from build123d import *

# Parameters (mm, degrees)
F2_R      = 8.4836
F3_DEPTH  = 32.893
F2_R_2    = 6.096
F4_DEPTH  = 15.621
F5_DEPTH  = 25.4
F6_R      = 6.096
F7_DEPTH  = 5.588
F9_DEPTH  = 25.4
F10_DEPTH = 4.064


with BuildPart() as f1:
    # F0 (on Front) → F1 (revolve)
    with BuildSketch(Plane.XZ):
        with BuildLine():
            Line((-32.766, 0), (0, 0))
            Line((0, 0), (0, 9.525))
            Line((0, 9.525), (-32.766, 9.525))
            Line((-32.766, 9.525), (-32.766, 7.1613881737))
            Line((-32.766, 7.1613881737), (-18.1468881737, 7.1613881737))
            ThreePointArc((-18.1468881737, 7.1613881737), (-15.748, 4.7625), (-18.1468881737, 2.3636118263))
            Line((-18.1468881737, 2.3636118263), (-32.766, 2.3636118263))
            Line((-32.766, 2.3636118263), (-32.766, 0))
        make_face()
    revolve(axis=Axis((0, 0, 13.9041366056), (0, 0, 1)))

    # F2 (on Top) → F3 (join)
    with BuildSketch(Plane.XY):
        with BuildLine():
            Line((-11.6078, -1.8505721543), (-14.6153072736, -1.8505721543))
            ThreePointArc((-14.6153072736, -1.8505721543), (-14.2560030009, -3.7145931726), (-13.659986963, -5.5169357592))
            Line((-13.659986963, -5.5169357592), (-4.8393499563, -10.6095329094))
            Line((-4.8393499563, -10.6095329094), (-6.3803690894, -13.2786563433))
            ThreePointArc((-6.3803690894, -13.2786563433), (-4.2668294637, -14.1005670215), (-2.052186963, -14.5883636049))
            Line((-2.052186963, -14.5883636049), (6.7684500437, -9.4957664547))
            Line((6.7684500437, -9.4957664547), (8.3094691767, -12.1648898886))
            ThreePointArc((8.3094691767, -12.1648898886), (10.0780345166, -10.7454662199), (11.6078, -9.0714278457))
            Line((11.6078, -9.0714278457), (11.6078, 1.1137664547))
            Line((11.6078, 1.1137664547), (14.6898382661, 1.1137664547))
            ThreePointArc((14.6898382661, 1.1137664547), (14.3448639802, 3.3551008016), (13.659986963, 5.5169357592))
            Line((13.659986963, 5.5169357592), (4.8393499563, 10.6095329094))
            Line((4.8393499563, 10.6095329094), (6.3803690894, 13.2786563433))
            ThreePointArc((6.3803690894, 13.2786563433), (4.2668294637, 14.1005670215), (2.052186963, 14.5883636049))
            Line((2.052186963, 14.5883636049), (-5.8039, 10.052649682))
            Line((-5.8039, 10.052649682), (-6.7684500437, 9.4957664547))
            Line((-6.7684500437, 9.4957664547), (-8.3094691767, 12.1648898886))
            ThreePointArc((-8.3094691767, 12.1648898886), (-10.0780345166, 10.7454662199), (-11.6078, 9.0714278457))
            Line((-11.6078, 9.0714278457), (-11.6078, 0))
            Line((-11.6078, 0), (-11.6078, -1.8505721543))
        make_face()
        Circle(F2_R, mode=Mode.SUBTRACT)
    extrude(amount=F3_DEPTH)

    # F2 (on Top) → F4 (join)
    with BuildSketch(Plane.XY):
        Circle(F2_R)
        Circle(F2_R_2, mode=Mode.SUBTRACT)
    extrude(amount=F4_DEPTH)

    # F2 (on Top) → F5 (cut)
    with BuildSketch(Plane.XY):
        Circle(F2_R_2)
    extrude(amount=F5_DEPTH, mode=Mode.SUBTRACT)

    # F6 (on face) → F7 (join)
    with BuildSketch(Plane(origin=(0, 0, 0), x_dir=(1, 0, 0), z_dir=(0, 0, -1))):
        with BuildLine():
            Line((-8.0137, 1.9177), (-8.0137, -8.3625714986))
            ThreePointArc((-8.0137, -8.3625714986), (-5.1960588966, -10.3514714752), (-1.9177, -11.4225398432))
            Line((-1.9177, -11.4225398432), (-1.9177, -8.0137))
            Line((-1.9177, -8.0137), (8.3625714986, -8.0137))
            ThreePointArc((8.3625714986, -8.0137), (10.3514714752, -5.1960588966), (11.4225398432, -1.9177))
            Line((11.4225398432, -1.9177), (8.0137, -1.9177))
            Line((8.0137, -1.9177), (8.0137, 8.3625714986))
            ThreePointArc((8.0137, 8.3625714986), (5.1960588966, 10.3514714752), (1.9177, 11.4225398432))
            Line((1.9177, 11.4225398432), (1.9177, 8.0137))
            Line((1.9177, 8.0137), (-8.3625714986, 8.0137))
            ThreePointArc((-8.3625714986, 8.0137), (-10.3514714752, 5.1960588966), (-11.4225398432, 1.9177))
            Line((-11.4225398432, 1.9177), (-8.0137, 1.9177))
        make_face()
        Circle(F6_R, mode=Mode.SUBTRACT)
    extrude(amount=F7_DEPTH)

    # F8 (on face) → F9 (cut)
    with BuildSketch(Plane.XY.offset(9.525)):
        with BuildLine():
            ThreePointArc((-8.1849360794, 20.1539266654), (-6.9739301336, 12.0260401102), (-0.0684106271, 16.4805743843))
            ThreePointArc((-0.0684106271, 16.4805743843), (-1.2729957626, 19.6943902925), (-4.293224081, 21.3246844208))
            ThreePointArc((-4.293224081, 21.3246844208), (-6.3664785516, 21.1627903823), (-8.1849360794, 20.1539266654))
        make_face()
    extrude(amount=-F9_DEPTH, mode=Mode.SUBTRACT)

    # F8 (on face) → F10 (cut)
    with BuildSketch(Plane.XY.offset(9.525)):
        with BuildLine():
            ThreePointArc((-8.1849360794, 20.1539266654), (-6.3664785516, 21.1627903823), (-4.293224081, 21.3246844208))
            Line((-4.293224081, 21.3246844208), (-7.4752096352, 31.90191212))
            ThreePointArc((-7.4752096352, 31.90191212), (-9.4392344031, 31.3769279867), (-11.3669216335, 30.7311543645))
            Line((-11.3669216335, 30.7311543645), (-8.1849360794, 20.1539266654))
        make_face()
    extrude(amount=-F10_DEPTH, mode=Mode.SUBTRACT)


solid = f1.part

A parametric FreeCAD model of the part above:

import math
import FreeCAD as App
import Part
import Sketcher
from FreeCAD import Vector
Q = App.Units.Quantity

doc = App.newDocument("Part")
body = doc.addObject("PartDesign::Body", "Body")

# Sketch on XZ plane
sketch1 = doc.addObject("Sketcher::SketchObject", "Sketch")
body.addObject(sketch1)
sketch1.AttachmentSupport = (doc.XZ_Plane, [""])
sketch1.MapMode = "FlatFace"
sketch1.addGeometry([
    Part.LineSegment(Vector(-32.8, 0, 0), Vector(0, 0, 0)),  # 0
    Part.LineSegment(Vector(0, 0, 0), Vector(0, 9.5, 0)),  # 1
    Part.LineSegment(Vector(0, 9.5, 0), Vector(-32.8, 9.5, 0)),  # 2
    Part.LineSegment(Vector(-32.8, 9.5, 0), Vector(-32.8, 7.2, 0)),  # 3
    Part.LineSegment(Vector(-32.8, 7.2, 0), Vector(-18.1, 7.2, 0)),  # 4
    Part.ArcOfCircle(Part.Circle(Vector(-18.1, 4.8, 0), Vector(0, 0, 1), 2.4), math.radians(-90), math.radians(90)),  # 5
    Part.LineSegment(Vector(-18.1, 2.4, 0), Vector(-32.8, 2.4, 0)),  # 6
    Part.LineSegment(Vector(-32.8, 2.4, 0), Vector(-32.8, 0, 0)),  # 7
], False)
sketch1.addConstraint([
    Sketcher.Constraint("Coincident", 0, 2, 1, 1),
    Sketcher.Constraint("Coincident", 1, 2, 2, 1),
    Sketcher.Constraint("Coincident", 2, 2, 3, 1),
    Sketcher.Constraint("Coincident", 3, 2, 4, 1),
    Sketcher.Constraint("Tangent", 4, 2, 5, 2),
    Sketcher.Constraint("Tangent", 5, 1, 6, 1),
    Sketcher.Constraint("Coincident", 6, 2, 7, 1),
    Sketcher.Constraint("Coincident", 7, 2, 0, 1),
    Sketcher.Constraint("Horizontal", 0),
    Sketcher.Constraint("Vertical", 1),
    Sketcher.Constraint("Horizontal", 2),
    Sketcher.Constraint("Vertical", 3),
    Sketcher.Constraint("Horizontal", 4),
    Sketcher.Constraint("Horizontal", 6),
    Sketcher.Constraint("Vertical", 7),
    Sketcher.Constraint("Coincident", 0, 2, -1, 1),
    Sketcher.Constraint("Vertical", 3, 2, 6, 2),
    Sketcher.Constraint("Equal", 3, 7),
    Sketcher.Constraint("DistanceX", 0, 1, 0, 2, Q("1.29 in")),
    Sketcher.Constraint("DistanceY", 1, 1, 1, 2, Q("0.375 in")),
    Sketcher.Constraint("Radius", 5, 2.398888),
    Sketcher.Constraint("DistanceX", 4, 1, 4, 2, 14.619112),
])
revolution = doc.addObject("PartDesign::Revolution", "Revolution")
body.addObject(revolution)
revolution.Profile = sketch1
revolution.ReferenceAxis = (sketch1, ["V_Axis"])
revolution.Angle = 360

# Sketch on XY plane
sketch2 = doc.addObject("Sketcher::SketchObject", "Sketch001")
body.addObject(sketch2)
sketch2.AttachmentSupport = (doc.XY_Plane, [""])
sketch2.MapMode = "FlatFace"
sketch2.addGeometry([
    Part.LineSegment(Vector(-11.6, -1.9, 0), Vector(-14.6, -1.9, 0)),  # 0
    Part.ArcOfCircle(Part.Circle(Vector(0, 0, 0), Vector(0, 0, 1), 14.7), math.radians(-172.78), math.radians(-158.01)),  # 1
    Part.LineSegment(Vector(-13.7, -5.5, 0), Vector(-4.8, -10.6, 0)),  # 2
    Part.LineSegment(Vector(-4.8, -10.6, 0), Vector(-6.4, -13.3, 0)),  # 3
    Part.ArcOfCircle(Part.Circle(Vector(0, 0, 0), Vector(0, 0, 1), 14.7), math.radians(-115.66), math.radians(-98.01)),  # 4
    Part.LineSegment(Vector(-2.1, -14.6, 0), Vector(6.8, -9.5, 0)),  # 5
    Part.LineSegment(Vector(6.8, -9.5, 0), Vector(8.3, -12.2, 0)),  # 6
    Part.ArcOfCircle(Part.Circle(Vector(0, 0, 0), Vector(0, 0, 1), 14.7), math.radians(-55.66), math.radians(-38.01)),  # 7
    Part.LineSegment(Vector(11.6, -9.1, 0), Vector(11.6, 1.1, 0)),  # 8
    Part.LineSegment(Vector(11.6, 1.1, 0), Vector(14.7, 1.1, 0)),  # 9
    Part.ArcOfCircle(Part.Circle(Vector(0, 0, 0), Vector(0, 0, 1), 14.7), math.radians(4.34), math.radians(21.99)),  # 10
    Part.LineSegment(Vector(13.7, 5.5, 0), Vector(4.8, 10.6, 0)),  # 11
    Part.LineSegment(Vector(4.8, 10.6, 0), Vector(6.4, 13.3, 0)),  # 12
    Part.ArcOfCircle(Part.Circle(Vector(0, 0, 0), Vector(0, 0, 1), 14.7), math.radians(64.34), math.radians(81.99)),  # 13
    Part.LineSegment(Vector(2.1, 14.6, 0), Vector(-5.8, 10.1, 0)),  # 14
    Part.LineSegment(Vector(-5.8, 10.1, 0), Vector(-6.8, 9.5, 0)),  # 15
    Part.LineSegment(Vector(-6.8, 9.5, 0), Vector(-8.3, 12.2, 0)),  # 16
    Part.ArcOfCircle(Part.Circle(Vector(0, 0, 0), Vector(0, 0, 1), 14.7), math.radians(124.34), math.radians(141.99)),  # 17
    Part.LineSegment(Vector(-11.6, 9.1, 0), Vector(-11.6, -1.9, 0)),  # 18
    Part.Circle(Vector(0, 0, 0), Vector(0, 0, 1), 8.5),  # 19
], False)
sketch2.addConstraint([
    Sketcher.Constraint("Coincident", 0, 2, 1, 1),
    Sketcher.Constraint("Coincident", 1, 2, 2, 1),
    Sketcher.Constraint("Coincident", 2, 2, 3, 1),
    Sketcher.Constraint("Coincident", 3, 2, 4, 1),
    Sketcher.Constraint("Coincident", 4, 2, 5, 1),
    Sketcher.Constraint("Coincident", 5, 2, 6, 1),
    Sketcher.Constraint("Coincident", 6, 2, 7, 1),
    Sketcher.Constraint("Coincident", 7, 2, 8, 1),
    Sketcher.Constraint("Coincident", 8, 2, 9, 1),
    Sketcher.Constraint("Coincident", 9, 2, 10, 1),
    Sketcher.Constraint("Coincident", 10, 2, 11, 1),
    Sketcher.Constraint("Coincident", 11, 2, 12, 1),
    Sketcher.Constraint("Coincident", 12, 2, 13, 1),
    Sketcher.Constraint("Coincident", 13, 2, 14, 1),
    Sketcher.Constraint("Coincident", 14, 2, 15, 1),
    Sketcher.Constraint("Coincident", 15, 2, 16, 1),
    Sketcher.Constraint("Coincident", 16, 2, 17, 1),
    Sketcher.Constraint("Coincident", 17, 2, 18, 1),
    Sketcher.Constraint("Coincident", 18, 2, 0, 1),
    Sketcher.Constraint("Horizontal", 0),
    Sketcher.Constraint("Vertical", 8),
    Sketcher.Constraint("Horizontal", 9),
    Sketcher.Constraint("Vertical", 18),
    Sketcher.Constraint("Coincident", 1, 3, -1, 1),
    Sketcher.Constraint("Coincident", 4, 3, -1, 1),
    Sketcher.Constraint("Coincident", 7, 3, -1, 1),
    Sketcher.Constraint("Coincident", 10, 3, -1, 1),
    Sketcher.Constraint("Coincident", 13, 3, -1, 1),
    Sketcher.Constraint("Coincident", 17, 3, -1, 1),
    Sketcher.Constraint("Coincident", 19, 3, -1, 1),
    Sketcher.Constraint("Equal", 1, 4),
    Sketcher.Constraint("Equal", 4, 7),
    Sketcher.Constraint("Equal", 7, 10),
    Sketcher.Constraint("Equal", 10, 13),
    Sketcher.Constraint("Equal", 13, 17),
    Sketcher.Constraint("Symmetric", 2, 2, 11, 2, -1, 1),
    Sketcher.Constraint("Symmetric", 5, 2, 15, 2, -1, 1),
    Sketcher.Constraint("Perpendicular", 2, 3),
    Sketcher.Constraint("Perpendicular", 5, 6),
    Sketcher.Constraint("Perpendicular", 3, 11),
    Sketcher.Constraint("Perpendicular", 11, 12),
    Sketcher.Constraint("Perpendicular", 6, 14),
    Sketcher.Constraint("Parallel", 14, 15),
    Sketcher.Constraint("Perpendicular", 15, 16),
    Sketcher.Constraint("Equal", 2, 5),
    Sketcher.Constraint("Equal", 3, 6),
    Sketcher.Constraint("Radius", 1, Q("0.58 in")),
    Sketcher.Constraint("Diameter", 19, Q("0.668 in")),
    Sketcher.Constraint("Angle", 2, Q("-30 deg")),
    Sketcher.Constraint("Angle", 5, Q("30 deg")),
    Sketcher.Constraint("DistanceY", 18, 2, 18, 1, Q("0.43 in")),
    Sketcher.Constraint("DistanceX", -1, 1, 7, 2, Q("0.457 in")),
    Sketcher.Constraint("DistanceX", 17, 2, -1, 1, Q("0.457 in")),
    Sketcher.Constraint("DistanceX", 2, 2, 5, 2, Q("0.457 in")),
    Sketcher.Constraint("DistanceX", 14, 2, -1, 1, Q("0.2285 in")),
    Sketcher.Constraint("DistanceX", 9, 1, 9, 2, 3.082038),
    Sketcher.Constraint("Distance", 3, 3.082038),
])
pad1 = doc.addObject("PartDesign::Pad", "Pad")
body.addObject(pad1)
pad1.Profile = sketch2
pad1.Length = Q("1.295 in")

# Sketch on XY plane
sketch3 = doc.addObject("Sketcher::SketchObject", "Sketch002")
body.addObject(sketch3)
sketch3.AttachmentSupport = (doc.XY_Plane, [""])
sketch3.MapMode = "FlatFace"
sketch3.addGeometry([
    Part.Circle(Vector(0, 0, 0), Vector(0, 0, 1), 8),
    Part.Circle(Vector(0, 0, 0), Vector(0, 0, 1), 6),
], False)
sketch3.addConstraint([
    Sketcher.Constraint("Coincident", 0, 3, -1, 1),
    Sketcher.Constraint("Coincident", 1, 3, -1, 1),
    Sketcher.Constraint("Diameter", 1, Q("0.48 in")),
    Sketcher.Constraint("Diameter", 0, Q("0.668 in")),
])
pad2 = doc.addObject("PartDesign::Pad", "Pad001")
body.addObject(pad2)
pad2.Profile = sketch3
pad2.Length = Q("0.615 in")

# Sketch on XY plane
sketch4 = doc.addObject("Sketcher::SketchObject", "Sketch003")
body.addObject(sketch4)
sketch4.AttachmentSupport = (doc.XY_Plane, [""])
sketch4.MapMode = "FlatFace"
sketch4.addGeometry(Part.Circle(Vector(0, 0, 0), Vector(0, 0, 1), 6), False)
sketch4.addConstraint([
    Sketcher.Constraint("Coincident", 0, 3, -1, 1),
    Sketcher.Constraint("Diameter", 0, Q("0.48 in")),
])
pocket1 = doc.addObject("PartDesign::Pocket", "Pocket")
body.addObject(pocket1)
pocket1.Profile = sketch4
pocket1.Length = Q("1 in")
pocket1.Reversed = True

# Sketch on XY plane
sketch5 = doc.addObject("Sketcher::SketchObject", "Sketch004")
body.addObject(sketch5)
sketch5.AttachmentSupport = (doc.XY_Plane, [""])
sketch5.MapMode = "FlatFace"
sketch5.addGeometry([
    Part.LineSegment(Vector(-8, -1.9, 0), Vector(-8, 8.4, 0)),  # 0
    Part.ArcOfCircle(Part.Circle(Vector(0, 0, 0), Vector(0, 0, 1), 11.6), math.radians(100), math.radians(134)),  # 1
    Part.LineSegment(Vector(-1.9, 11.4, 0), Vector(-1.9, 8, 0)),  # 2
    Part.LineSegment(Vector(-1.9, 8, 0), Vector(8.4, 8, 0)),  # 3
    Part.ArcOfCircle(Part.Circle(Vector(0, 0, 0), Vector(0, 0, 1), 11.6), math.radians(10), math.radians(44)),  # 4
    Part.LineSegment(Vector(11.4, 1.9, 0), Vector(8, 1.9, 0)),  # 5
    Part.LineSegment(Vector(8, 1.9, 0), Vector(8, -8.4, 0)),  # 6
    Part.ArcOfCircle(Part.Circle(Vector(0, 0, 0), Vector(0, 0, 1), 11.6), math.radians(-80), math.radians(-46)),  # 7
    Part.LineSegment(Vector(1.9, -11.4, 0), Vector(1.9, -8, 0)),  # 8
    Part.LineSegment(Vector(1.9, -8, 0), Vector(-8.4, -8, 0)),  # 9
    Part.ArcOfCircle(Part.Circle(Vector(0, 0, 0), Vector(0, 0, 1), 11.6), math.radians(-170), math.radians(-136)),  # 10
    Part.LineSegment(Vector(-11.4, -1.9, 0), Vector(-8, -1.9, 0)),  # 11
    Part.Circle(Vector(0, 0, 0), Vector(0, 0, 1), 6.1),  # 12
], False)
sketch5.addConstraint([
    Sketcher.Constraint("Coincident", 0, 2, 1, 2),
    Sketcher.Constraint("Coincident", 1, 1, 2, 1),
    Sketcher.Constraint("Coincident", 2, 2, 3, 1),
    Sketcher.Constraint("Coincident", 3, 2, 4, 2),
    Sketcher.Constraint("Coincident", 4, 1, 5, 1),
    Sketcher.Constraint("Coincident", 5, 2, 6, 1),
    Sketcher.Constraint("Coincident", 6, 2, 7, 2),
    Sketcher.Constraint("Coincident", 7, 1, 8, 1),
    Sketcher.Constraint("Coincident", 8, 2, 9, 1),
    Sketcher.Constraint("Coincident", 9, 2, 10, 2),
    Sketcher.Constraint("Coincident", 10, 1, 11, 1),
    Sketcher.Constraint("Coincident", 11, 2, 0, 1),
    Sketcher.Constraint("Vertical", 0),
    Sketcher.Constraint("Vertical", 2),
    Sketcher.Constraint("Horizontal", 3),
    Sketcher.Constraint("Horizontal", 5),
    Sketcher.Constraint("Vertical", 6),
    Sketcher.Constraint("Vertical", 8),
    Sketcher.Constraint("Horizontal", 9),
    Sketcher.Constraint("Horizontal", 11),
    Sketcher.Constraint("Coincident", 1, 3, -1, 1),
    Sketcher.Constraint("Coincident", 4, 3, -1, 1),
    Sketcher.Constraint("Coincident", 7, 3, -1, 1),
    Sketcher.Constraint("Coincident", 10, 3, -1, 1),
    Sketcher.Constraint("Coincident", 12, 3, -1, 1),
    Sketcher.Constraint("Equal", 1, 4),
    Sketcher.Constraint("Equal", 4, 7),
    Sketcher.Constraint("Equal", 7, 10),
    Sketcher.Constraint("Symmetric", 2, 2, 8, 2, -1, 1),
    Sketcher.Constraint("Symmetric", 5, 2, 11, 2, -1, 1),
    Sketcher.Constraint("Equal", 9, 0),
    Sketcher.Constraint("Equal", 11, 2),
    Sketcher.Constraint("Diameter", 12, Q("0.48 in")),
    Sketcher.Constraint("Radius", 1, Q("0.456 in")),
    Sketcher.Constraint("DistanceX", 0, 2, 1, 1, Q("0.24 in")),
    Sketcher.Constraint("DistanceX", 0, 2, -1, 1, Q("0.3155 in")),
])
pad3 = doc.addObject("PartDesign::Pad", "Pad002")
body.addObject(pad3)
pad3.Profile = sketch5
pad3.Length = Q("0.22 in")
pad3.Reversed = True

# Sketch on XY plane
sketch6 = doc.addObject("Sketcher::SketchObject", "Sketch005")
body.addObject(sketch6)
sketch6.AttachmentSupport = (doc.XY_Plane, [""])
sketch6.MapMode = "FlatFace"
sketch6.AttachmentOffset = App.Placement(Vector(0, 0, 0.375 * 25.4), App.Rotation())
sketch6.addGeometry([
    Part.ArcOfCircle(Part.Circle(Vector(-5, 16.5, 0), Vector(0, 0, 1), 4.9), math.radians(131), math.radians(360)),
    Part.ArcOfCircle(Part.Circle(Vector(-5, 16.5, 0), Vector(0, 0, 1), 4.9), math.radians(0), math.radians(82)),
    Part.ArcOfCircle(Part.Circle(Vector(-5, 16.5, 0), Vector(0, 0, 1), 4.9), math.radians(82), math.radians(131)),
], False)
sketch6.addConstraint([
    Sketcher.Constraint("Tangent", 0, 2, 1, 1),
    Sketcher.Constraint("Tangent", 1, 2, 2, 1),
    Sketcher.Constraint("Tangent", 2, 2, 0, 1),
    Sketcher.Constraint("Horizontal", 2, 3, 0, 2),
    Sketcher.Constraint("Radius", 0, Q("0.1925 in")),
    Sketcher.Constraint("DistanceX", 0, 3, -1, 1, 4.957911),
    Sketcher.Constraint("DistanceY", 0, 3, 1, 2, 4.84411),
    Sketcher.Constraint("DistanceX", 2, 2, 1, 2, 3.891712),
    Sketcher.Constraint("DistanceY", -1, 1, 0, 3, 16.480574),
])
pocket2 = doc.addObject("PartDesign::Pocket", "Pocket001")
body.addObject(pocket2)
pocket2.Profile = sketch6
pocket2.Length = Q("1 in")

# Sketch on XY plane
sketch7 = doc.addObject("Sketcher::SketchObject", "Sketch006")
body.addObject(sketch7)
sketch7.AttachmentSupport = (doc.XY_Plane, [""])
sketch7.MapMode = "FlatFace"
sketch7.AttachmentOffset = App.Placement(Vector(0, 0, 0.375 * 25.4), App.Rotation())
sketch7.addGeometry([
    Part.ArcOfCircle(Part.Circle(Vector(-5, 16.5, 0), Vector(0, 0, 1), 4.9), math.radians(82), math.radians(131)),
    Part.LineSegment(Vector(-4.3, 21.3, 0), Vector(-7.5, 31.9, 0)),
    Part.ArcOfCircle(Part.Circle(Vector(0, 0, 0), Vector(0, 0, 1), 32.8), math.radians(103.19), math.radians(110.3)),
    Part.LineSegment(Vector(-11.4, 30.7, 0), Vector(-8.2, 20.2, 0)),
], False)
sketch7.addConstraint([
    Sketcher.Constraint("Coincident", 0, 1, 1, 1),
    Sketcher.Constraint("Coincident", 1, 2, 2, 1),
    Sketcher.Constraint("Coincident", 2, 2, 3, 1),
    Sketcher.Constraint("Coincident", 3, 2, 0, 2),
    Sketcher.Constraint("Coincident", 2, 3, -1, 1),
    Sketcher.Constraint("Parallel", 1, 3),
    Sketcher.Constraint("Equal", 1, 3),
    Sketcher.Constraint("Radius", 2, Q("1.29 in")),
    Sketcher.Constraint("Radius", 0, Q("0.1925 in")),
    Sketcher.Constraint("DistanceX", 1, 2, 0, 3, 2.517299),
    Sketcher.Constraint("DistanceX", 0, 3, -1, 1, 4.957911),
    Sketcher.Constraint("DistanceX", 2, 2, -1, 1, 11.366922),
    Sketcher.Constraint("DistanceY", 0, 1, 2, 2, 9.40647),
])
pocket3 = doc.addObject("PartDesign::Pocket", "Pocket002")
body.addObject(pocket3)
pocket3.Profile = sketch7
pocket3.Length = Q("0.16 in")

doc.recompute()
